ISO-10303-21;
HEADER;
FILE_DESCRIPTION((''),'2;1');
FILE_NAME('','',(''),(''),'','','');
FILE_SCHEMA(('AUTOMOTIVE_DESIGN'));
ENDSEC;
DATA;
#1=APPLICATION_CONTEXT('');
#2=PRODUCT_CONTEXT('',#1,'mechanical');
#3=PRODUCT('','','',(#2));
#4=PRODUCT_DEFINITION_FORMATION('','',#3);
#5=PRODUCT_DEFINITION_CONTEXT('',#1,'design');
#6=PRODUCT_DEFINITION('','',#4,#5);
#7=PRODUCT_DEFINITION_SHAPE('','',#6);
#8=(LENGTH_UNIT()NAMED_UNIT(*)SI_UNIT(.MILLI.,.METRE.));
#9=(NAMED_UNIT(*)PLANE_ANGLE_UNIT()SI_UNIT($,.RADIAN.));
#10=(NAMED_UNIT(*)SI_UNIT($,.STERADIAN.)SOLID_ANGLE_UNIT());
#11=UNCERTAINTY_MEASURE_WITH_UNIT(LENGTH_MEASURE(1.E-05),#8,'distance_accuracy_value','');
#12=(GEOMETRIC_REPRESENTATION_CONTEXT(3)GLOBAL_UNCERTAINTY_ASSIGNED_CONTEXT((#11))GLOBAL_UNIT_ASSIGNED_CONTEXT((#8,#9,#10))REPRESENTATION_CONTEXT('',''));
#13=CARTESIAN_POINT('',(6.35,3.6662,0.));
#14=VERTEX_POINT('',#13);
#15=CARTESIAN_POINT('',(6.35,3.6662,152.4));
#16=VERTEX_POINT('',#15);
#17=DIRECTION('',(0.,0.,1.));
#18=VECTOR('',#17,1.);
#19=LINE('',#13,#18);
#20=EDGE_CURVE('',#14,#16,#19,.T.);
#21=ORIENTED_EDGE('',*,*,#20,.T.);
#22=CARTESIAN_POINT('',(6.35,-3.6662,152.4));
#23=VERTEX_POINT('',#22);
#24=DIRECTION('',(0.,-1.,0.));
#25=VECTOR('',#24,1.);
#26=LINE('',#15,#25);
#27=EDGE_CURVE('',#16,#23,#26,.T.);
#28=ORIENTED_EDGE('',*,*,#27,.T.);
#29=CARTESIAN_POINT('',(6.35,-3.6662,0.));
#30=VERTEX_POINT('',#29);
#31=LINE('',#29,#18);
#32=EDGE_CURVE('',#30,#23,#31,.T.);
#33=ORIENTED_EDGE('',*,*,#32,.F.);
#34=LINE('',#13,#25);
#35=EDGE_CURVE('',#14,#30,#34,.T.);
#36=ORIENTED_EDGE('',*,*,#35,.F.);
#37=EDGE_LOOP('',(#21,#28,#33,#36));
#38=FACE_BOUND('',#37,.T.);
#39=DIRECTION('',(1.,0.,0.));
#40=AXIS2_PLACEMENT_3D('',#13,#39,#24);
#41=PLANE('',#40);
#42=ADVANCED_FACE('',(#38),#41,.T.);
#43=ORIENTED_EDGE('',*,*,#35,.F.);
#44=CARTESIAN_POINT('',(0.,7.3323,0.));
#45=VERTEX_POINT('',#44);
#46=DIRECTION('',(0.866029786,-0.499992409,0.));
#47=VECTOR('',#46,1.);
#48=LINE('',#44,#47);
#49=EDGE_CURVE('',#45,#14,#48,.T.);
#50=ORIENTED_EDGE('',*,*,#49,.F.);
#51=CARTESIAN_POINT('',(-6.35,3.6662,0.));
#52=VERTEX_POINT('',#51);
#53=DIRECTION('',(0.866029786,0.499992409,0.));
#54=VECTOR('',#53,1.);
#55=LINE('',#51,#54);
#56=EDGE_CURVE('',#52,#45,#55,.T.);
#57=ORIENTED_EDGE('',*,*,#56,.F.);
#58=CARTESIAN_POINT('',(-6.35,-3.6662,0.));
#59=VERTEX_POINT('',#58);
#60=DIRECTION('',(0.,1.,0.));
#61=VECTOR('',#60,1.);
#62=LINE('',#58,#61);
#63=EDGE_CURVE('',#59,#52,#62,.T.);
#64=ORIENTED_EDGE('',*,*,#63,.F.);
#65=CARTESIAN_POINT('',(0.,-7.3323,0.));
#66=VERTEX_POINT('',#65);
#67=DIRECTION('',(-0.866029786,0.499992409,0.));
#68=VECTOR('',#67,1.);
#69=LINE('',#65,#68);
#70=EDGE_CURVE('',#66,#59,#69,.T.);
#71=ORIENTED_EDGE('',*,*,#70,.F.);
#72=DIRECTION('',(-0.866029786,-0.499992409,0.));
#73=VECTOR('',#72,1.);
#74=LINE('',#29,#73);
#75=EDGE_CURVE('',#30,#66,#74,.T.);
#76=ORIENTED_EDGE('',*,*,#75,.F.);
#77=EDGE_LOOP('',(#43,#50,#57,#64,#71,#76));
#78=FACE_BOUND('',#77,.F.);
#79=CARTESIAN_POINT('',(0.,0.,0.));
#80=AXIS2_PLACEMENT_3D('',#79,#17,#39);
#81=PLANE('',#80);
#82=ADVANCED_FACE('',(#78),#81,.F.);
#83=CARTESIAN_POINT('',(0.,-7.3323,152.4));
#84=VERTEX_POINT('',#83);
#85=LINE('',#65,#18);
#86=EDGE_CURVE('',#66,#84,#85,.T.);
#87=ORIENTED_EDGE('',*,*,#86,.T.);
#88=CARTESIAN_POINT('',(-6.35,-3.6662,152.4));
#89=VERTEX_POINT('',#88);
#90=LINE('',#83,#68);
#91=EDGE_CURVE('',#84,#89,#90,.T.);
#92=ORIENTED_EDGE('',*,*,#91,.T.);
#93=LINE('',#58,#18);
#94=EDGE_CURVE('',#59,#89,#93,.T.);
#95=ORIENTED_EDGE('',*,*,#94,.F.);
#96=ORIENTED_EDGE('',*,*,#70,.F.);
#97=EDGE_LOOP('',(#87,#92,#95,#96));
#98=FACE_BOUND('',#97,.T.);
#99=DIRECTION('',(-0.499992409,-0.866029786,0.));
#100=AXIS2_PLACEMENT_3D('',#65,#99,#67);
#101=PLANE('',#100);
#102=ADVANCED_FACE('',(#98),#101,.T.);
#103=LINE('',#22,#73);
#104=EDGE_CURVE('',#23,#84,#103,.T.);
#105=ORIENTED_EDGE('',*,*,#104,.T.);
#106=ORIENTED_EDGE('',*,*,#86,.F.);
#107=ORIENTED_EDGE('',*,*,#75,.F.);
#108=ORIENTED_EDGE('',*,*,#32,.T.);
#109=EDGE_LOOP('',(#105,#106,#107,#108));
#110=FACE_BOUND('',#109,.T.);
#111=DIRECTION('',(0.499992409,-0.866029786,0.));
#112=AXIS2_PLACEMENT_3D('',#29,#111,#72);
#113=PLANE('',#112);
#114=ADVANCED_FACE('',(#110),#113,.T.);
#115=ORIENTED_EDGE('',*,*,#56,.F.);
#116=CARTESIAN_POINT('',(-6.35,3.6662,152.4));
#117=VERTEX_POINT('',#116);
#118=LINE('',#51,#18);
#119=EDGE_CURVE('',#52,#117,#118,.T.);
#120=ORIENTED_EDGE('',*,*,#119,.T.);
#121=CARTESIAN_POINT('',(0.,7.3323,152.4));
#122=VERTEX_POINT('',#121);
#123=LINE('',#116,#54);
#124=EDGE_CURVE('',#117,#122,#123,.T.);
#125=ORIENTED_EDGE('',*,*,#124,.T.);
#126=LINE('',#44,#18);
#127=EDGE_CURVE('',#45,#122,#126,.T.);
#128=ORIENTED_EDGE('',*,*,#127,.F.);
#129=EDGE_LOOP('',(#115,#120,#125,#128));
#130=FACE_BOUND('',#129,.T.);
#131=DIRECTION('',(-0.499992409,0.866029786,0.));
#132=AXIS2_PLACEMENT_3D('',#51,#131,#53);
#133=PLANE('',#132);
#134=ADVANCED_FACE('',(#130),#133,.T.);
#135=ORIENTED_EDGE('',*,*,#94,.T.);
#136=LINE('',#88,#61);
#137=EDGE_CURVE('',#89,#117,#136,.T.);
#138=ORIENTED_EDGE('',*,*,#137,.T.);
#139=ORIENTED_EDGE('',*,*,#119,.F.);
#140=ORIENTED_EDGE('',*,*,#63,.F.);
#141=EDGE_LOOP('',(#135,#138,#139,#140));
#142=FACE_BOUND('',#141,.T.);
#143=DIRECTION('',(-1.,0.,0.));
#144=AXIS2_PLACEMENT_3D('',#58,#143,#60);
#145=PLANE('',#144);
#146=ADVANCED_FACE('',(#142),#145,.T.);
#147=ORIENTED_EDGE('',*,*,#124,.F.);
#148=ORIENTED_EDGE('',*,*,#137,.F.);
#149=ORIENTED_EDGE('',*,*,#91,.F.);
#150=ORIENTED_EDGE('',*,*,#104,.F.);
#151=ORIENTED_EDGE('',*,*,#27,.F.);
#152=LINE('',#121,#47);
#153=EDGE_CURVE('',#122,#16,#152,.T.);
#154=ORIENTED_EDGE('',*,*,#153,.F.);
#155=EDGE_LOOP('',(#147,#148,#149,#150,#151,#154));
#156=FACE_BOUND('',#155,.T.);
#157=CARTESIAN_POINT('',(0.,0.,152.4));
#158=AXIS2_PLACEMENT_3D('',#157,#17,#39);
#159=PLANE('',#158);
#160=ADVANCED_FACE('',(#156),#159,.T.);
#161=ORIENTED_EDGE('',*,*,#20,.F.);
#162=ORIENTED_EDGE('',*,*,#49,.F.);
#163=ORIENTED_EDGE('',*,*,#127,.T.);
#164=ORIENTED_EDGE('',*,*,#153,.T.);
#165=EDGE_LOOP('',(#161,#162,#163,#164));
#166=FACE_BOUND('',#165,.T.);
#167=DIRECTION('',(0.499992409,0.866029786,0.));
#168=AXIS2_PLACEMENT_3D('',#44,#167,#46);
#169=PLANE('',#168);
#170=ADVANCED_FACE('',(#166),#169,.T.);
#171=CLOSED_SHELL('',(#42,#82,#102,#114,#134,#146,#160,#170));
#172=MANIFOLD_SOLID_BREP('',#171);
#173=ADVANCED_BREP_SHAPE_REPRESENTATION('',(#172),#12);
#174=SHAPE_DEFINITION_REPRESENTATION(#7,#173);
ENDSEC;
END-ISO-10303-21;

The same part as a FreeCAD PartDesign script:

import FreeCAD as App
import Part
import Sketcher

V = App.Vector
Q = App.Units.Quantity


def add_polygon(sketch, points):
    """Adds a closed chain of lines whose ends are joined by coincident constraints."""
    first, n = sketch.GeometryCount, len(points)
    for a, b in zip(points, points[1:] + points[:1]):
        sketch.addGeometry(Part.LineSegment(App.Vector(*a, 0), App.Vector(*b, 0)), False)
    for i in range(n):
        sketch.addConstraint(Sketcher.Constraint("Coincident", first + i, 2, first + (i + 1) % n, 1))

doc = App.newDocument("Part")
params = doc.addObject("Spreadsheet::Sheet", "Params")
for row, (alias, value) in enumerate([
    ("pad1_length", "6 in"),
], start=1):
    params.set(f"A{row}", alias)
    params.set(f"B{row}", "=" + value)
    params.setAlias(f"B{row}", alias)

body = doc.addObject("PartDesign::Body", "Body")

sketch1 = body.newObject("Sketcher::SketchObject", "Sketch")
sketch1.AttachmentSupport = (doc.getObject("XY_Plane"), [""])
sketch1.MapMode = "FlatFace"
add_polygon(sketch1, [(6, 4), (0, 7), (-6, 4), (-6, -4), (0, -7), (6, -4)])
sketch1.addConstraint(Sketcher.Constraint("Vertical", 2))
sketch1.addConstraint(Sketcher.Constraint("Vertical", 5))
sketch1.addConstraint(Sketcher.Constraint("Symmetric", 0, 2, 3, 2, -1, 1))
sketch1.addConstraint(Sketcher.Constraint("Symmetric", 1, 2, 4, 2, -1, 1))
sketch1.addConstraint(Sketcher.Constraint("PointOnObject", 0, 2, -2))
sketch1.addConstraint(Sketcher.Constraint("Parallel", 0, 3))
sketch1.addConstraint(Sketcher.Constraint("Horizontal", 2, 2, 4, 2))
sketch1.addConstraint(Sketcher.Constraint("DistanceX", 2, 2, 4, 2, Q("0.5 in")))
sketch1.addConstraint(Sketcher.Constraint("Angle", 0, Q("150.0005 deg")))
sketch1.addConstraint(Sketcher.Constraint("DistanceY", 2, 2, 0, 2, Q("0.433 in")))
pad1 = body.newObject("PartDesign::Pad", "Pad")
pad1.Profile = sketch1
pad1.setExpression("Length", "Params.pad1_length")

doc.recompute()
